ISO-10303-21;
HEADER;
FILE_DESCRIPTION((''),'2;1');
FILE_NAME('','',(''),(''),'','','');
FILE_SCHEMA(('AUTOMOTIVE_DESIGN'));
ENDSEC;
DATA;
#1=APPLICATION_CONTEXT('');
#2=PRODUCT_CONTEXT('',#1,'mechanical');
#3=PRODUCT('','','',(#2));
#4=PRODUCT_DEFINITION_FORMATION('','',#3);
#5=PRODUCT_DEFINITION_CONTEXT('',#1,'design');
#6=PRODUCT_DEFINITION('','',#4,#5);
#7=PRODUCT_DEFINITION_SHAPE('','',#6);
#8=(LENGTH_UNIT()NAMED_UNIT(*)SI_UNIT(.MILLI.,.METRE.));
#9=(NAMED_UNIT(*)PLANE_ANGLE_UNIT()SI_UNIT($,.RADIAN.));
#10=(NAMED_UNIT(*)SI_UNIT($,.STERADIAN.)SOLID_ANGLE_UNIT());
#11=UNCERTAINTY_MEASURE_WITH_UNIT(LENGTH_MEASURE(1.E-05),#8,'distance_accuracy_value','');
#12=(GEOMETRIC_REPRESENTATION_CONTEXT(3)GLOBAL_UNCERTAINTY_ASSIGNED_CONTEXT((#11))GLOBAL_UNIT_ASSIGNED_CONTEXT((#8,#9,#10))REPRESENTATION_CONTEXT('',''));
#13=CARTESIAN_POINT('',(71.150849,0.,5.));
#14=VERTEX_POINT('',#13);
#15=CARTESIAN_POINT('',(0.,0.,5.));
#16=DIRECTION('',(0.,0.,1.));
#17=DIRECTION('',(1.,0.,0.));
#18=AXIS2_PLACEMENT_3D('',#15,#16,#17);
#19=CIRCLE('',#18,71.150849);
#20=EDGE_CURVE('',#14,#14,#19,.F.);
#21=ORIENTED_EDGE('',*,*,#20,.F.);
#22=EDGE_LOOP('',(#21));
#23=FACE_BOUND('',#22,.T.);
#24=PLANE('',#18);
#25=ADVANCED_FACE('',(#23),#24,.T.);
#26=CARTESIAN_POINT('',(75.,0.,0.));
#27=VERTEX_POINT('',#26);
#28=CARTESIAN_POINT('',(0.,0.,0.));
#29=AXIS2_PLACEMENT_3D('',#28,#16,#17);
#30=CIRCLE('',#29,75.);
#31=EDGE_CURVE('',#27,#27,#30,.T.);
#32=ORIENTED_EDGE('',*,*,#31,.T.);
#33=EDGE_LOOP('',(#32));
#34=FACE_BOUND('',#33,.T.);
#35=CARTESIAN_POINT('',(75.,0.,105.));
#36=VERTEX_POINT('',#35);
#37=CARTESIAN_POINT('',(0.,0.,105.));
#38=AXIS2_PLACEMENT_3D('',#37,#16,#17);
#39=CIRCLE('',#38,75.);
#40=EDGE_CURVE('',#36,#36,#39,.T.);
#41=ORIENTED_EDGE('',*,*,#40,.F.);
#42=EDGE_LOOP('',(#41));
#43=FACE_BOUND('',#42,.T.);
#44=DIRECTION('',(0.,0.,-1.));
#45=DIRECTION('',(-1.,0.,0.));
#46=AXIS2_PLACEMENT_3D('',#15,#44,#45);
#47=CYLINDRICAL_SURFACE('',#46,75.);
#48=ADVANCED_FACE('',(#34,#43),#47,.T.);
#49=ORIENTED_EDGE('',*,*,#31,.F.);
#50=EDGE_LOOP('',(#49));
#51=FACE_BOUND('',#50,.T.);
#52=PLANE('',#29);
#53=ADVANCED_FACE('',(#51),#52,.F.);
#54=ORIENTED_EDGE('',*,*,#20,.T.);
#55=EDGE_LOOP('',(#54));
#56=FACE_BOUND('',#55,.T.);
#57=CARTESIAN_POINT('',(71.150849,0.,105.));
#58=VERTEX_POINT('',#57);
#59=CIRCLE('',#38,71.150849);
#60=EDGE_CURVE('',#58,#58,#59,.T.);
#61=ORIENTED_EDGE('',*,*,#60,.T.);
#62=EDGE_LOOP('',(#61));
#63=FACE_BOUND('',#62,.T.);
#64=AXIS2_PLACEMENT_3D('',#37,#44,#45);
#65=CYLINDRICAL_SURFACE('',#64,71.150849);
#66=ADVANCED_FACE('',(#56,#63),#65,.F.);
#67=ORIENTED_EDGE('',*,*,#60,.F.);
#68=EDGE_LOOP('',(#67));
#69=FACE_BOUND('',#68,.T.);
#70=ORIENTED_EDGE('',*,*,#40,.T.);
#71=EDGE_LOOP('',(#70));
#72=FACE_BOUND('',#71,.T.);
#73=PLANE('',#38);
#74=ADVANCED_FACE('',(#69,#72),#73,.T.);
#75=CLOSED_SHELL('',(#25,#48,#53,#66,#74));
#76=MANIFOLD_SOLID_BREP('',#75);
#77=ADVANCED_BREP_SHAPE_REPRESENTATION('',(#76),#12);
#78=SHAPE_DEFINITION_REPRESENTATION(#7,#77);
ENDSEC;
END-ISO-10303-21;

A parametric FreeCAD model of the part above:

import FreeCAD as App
import Part
import Sketcher
from FreeCAD import Vector

doc = App.newDocument("Part")
body = doc.addObject("PartDesign::Body", "Body")

sketch1 = body.newObject("Sketcher::SketchObject", "Sketch")
sketch1.AttachmentSupport = (doc.getObject("XY_Plane"), [""])
sketch1.MapMode = "FlatFace"
sketch1.addGeometry(Part.Circle(Vector(0, 0, 0), Vector(0, 0, 1), 75), False)
sketch1.addConstraint([
    Sketcher.Constraint("Coincident", 0, 3, -1, 1),
    Sketcher.Constraint("Diameter", 0, 150.0),
])
pad1 = body.newObject("PartDesign::Pad", "Pad")
pad1.Profile = sketch1
pad1.Length = 5

sketch2 = body.newObject("Sketcher::SketchObject", "Sketch001")
sketch2.AttachmentSupport = (doc.getObject("XY_Plane"), [""])
sketch2.MapMode = "FlatFace"
sketch2.AttachmentOffset = App.Placement(Vector(0, 0, 5), App.Rotation())
sketch2.addGeometry([
    Part.Circle(Vector(0, 0, 0), Vector(0, 0, 1), 75),
    Part.Circle(Vector(0, 0, 0), Vector(0, 0, 1), 71.150849),
], False)
sketch2.addConstraint([
    Sketcher.Constraint("Coincident", 0, 3, -1, 1),
    Sketcher.Constraint("Coincident", 1, 3, -1, 1),
    Sketcher.Constraint("Diameter", 0, 150.0),
    Sketcher.Constraint("Diameter", 1, 142.301698),
])
pad2 = body.newObject("PartDesign::Pad", "Pad001")
pad2.Profile = sketch2
pad2.Length = 100

doc.recompute()
